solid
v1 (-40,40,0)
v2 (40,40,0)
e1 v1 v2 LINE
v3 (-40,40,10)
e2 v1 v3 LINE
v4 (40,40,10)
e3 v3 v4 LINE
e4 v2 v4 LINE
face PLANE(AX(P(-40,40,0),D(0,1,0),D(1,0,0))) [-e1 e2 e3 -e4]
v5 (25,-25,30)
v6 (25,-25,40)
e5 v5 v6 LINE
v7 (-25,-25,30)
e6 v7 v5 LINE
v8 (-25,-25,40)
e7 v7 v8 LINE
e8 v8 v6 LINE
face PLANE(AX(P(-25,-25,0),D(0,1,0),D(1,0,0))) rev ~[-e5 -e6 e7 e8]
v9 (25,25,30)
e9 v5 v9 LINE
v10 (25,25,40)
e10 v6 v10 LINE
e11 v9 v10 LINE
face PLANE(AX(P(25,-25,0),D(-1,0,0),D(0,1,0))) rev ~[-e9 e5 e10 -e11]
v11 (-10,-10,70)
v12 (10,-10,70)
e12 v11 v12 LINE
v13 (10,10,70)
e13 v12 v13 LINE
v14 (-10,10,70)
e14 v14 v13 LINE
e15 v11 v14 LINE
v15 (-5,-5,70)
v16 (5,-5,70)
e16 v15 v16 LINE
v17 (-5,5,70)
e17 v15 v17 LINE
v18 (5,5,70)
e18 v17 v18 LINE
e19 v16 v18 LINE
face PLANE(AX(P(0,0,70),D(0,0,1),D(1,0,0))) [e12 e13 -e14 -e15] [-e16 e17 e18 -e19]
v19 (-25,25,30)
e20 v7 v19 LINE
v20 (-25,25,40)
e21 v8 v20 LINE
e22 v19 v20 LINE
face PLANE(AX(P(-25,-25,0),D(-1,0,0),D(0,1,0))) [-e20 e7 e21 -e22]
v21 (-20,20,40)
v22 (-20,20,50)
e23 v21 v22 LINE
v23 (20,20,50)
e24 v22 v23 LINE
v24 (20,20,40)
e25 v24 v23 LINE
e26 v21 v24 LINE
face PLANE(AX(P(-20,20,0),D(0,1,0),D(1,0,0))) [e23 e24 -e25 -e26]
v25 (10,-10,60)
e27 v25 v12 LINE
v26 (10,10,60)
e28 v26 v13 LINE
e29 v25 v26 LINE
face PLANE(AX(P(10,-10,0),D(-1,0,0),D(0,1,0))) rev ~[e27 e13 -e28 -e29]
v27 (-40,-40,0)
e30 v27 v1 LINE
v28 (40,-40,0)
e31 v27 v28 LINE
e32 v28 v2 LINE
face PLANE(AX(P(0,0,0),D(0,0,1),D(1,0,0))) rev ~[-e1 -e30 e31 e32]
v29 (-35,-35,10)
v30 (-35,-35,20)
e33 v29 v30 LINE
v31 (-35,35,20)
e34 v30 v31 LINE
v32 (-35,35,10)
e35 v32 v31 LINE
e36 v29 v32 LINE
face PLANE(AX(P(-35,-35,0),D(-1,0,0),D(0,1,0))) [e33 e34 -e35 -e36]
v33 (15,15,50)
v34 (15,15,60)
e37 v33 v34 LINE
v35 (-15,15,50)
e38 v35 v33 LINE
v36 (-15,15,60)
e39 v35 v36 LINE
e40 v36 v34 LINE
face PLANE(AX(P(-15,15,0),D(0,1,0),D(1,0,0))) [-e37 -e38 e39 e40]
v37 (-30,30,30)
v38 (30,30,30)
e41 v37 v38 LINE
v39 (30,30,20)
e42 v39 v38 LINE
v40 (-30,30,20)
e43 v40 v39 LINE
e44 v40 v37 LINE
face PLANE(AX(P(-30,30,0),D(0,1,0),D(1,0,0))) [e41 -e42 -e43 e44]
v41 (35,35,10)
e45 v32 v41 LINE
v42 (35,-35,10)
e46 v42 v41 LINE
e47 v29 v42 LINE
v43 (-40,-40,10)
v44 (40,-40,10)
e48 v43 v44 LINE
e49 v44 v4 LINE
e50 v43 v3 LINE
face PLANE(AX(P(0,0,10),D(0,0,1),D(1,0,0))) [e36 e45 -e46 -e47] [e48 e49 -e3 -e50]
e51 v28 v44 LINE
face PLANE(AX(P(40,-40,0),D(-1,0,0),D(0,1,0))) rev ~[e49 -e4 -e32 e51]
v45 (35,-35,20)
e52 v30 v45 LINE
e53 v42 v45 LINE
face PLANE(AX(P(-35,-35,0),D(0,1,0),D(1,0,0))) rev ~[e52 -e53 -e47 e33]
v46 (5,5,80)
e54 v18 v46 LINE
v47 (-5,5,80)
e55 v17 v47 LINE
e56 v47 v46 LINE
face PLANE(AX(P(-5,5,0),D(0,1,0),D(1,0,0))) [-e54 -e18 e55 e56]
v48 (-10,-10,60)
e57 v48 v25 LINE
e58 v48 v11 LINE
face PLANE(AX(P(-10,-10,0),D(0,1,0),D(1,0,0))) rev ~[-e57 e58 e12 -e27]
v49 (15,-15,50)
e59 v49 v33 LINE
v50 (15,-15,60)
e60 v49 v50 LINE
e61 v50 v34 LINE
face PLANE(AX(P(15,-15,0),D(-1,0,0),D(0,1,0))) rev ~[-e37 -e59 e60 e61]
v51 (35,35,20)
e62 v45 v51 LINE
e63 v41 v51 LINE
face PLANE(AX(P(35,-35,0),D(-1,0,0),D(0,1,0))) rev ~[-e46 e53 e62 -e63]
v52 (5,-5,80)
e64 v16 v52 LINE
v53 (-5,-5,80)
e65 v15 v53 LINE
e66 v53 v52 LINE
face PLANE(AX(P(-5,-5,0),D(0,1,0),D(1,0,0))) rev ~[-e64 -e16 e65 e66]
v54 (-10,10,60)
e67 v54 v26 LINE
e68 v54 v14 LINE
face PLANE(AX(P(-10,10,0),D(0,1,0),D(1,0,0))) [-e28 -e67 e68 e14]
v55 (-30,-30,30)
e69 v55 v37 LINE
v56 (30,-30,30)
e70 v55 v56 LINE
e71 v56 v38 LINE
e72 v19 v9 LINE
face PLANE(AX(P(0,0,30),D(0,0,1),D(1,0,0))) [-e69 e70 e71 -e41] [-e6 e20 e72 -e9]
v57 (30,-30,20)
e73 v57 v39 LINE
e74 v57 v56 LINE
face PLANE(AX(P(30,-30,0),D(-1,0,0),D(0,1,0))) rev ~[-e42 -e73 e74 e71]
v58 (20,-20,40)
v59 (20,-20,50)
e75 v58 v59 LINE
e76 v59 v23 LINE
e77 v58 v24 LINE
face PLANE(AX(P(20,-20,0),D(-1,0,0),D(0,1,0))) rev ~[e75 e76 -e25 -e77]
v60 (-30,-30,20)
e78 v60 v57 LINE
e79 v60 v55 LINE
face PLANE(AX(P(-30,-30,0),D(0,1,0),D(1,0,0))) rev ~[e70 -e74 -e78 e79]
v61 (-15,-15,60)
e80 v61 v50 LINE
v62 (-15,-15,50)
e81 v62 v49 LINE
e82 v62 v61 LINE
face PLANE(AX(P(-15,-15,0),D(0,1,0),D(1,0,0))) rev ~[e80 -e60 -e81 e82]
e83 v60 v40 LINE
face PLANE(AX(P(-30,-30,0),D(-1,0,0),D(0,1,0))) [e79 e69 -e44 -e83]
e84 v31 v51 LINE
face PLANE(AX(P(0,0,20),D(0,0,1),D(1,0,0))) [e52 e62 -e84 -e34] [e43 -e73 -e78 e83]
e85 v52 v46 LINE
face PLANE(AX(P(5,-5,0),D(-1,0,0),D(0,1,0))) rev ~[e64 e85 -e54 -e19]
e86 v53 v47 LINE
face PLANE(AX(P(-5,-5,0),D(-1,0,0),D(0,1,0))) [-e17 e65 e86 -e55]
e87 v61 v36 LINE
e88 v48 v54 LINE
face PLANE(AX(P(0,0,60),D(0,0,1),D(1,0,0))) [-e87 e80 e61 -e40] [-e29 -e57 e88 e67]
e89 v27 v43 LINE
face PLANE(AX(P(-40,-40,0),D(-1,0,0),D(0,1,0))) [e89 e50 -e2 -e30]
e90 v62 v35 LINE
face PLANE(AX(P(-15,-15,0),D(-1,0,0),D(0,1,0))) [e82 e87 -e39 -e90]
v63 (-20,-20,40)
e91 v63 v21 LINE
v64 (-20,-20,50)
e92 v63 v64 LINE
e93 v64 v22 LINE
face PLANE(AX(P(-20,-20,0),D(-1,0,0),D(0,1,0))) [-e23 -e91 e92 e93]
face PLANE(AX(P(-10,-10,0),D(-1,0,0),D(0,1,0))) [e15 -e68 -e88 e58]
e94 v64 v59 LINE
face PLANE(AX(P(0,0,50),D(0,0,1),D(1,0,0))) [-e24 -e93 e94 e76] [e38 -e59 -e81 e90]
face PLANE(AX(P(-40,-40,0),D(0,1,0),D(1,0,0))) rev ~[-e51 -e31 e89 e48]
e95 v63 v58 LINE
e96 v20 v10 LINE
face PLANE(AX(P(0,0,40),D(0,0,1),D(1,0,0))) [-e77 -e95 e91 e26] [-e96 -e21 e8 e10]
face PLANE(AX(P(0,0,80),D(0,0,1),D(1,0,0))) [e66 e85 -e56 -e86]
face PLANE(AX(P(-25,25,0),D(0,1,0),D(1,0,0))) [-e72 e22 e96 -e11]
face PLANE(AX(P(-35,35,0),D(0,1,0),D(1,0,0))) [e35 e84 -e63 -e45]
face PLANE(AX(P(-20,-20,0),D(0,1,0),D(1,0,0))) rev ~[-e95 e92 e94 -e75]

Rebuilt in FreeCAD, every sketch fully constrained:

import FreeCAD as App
import Part
import Sketcher
from FreeCAD import Vector
Q = App.Units.Quantity

doc = App.newDocument("Part")
body = doc.addObject("PartDesign::Body", "Body")

sketch1 = body.newObject("Sketcher::SketchObject", "Sketch")
sketch1.AttachmentSupport = (doc.getObject("XY_Plane"), [""])
sketch1.MapMode = "FlatFace"
sketch1.addGeometry([
    Part.LineSegment(Vector(-40, 40, 0), Vector(-40, -40, 0)),
    Part.LineSegment(Vector(-40, -40, 0), Vector(40, -40, 0)),
    Part.LineSegment(Vector(40, -40, 0), Vector(40, 40, 0)),
    Part.LineSegment(Vector(40, 40, 0), Vector(-40, 40, 0)),
    Part.LineSegment(Vector(35, -35, 0), Vector(-35, -35, 0)),
    Part.LineSegment(Vector(-35, -35, 0), Vector(-35, 35, 0)),
    Part.LineSegment(Vector(-35, 35, 0), Vector(35, 35, 0)),
    Part.LineSegment(Vector(35, 35, 0), Vector(35, -35, 0)),
], False)
sketch1.addConstraint([
    Sketcher.Constraint("Coincident", 0, 2, 1, 1),
    Sketcher.Constraint("Coincident", 1, 2, 2, 1),
    Sketcher.Constraint("Coincident", 2, 2, 3, 1),
    Sketcher.Constraint("Coincident", 3, 2, 0, 1),
    Sketcher.Constraint("Coincident", 4, 2, 5, 1),
    Sketcher.Constraint("Coincident", 5, 2, 6, 1),
    Sketcher.Constraint("Coincident", 6, 2, 7, 1),
    Sketcher.Constraint("Coincident", 7, 2, 4, 1),
    Sketcher.Constraint("Vertical", 0),
    Sketcher.Constraint("Horizontal", 1),
    Sketcher.Constraint("Vertical", 2),
    Sketcher.Constraint("Horizontal", 3),
    Sketcher.Constraint("Horizontal", 4),
    Sketcher.Constraint("Vertical", 5),
    Sketcher.Constraint("Horizontal", 6),
    Sketcher.Constraint("Vertical", 7),
    Sketcher.Constraint("Symmetric", 0, 2, 2, 2, -1, 1),
    Sketcher.Constraint("Symmetric", 4, 2, 6, 2, -1, 1),
    Sketcher.Constraint("Equal", 3, 0),
    Sketcher.Constraint("Equal", 6, 5),
    Sketcher.Constraint("DistanceX", 1, 1, 1, 2, Q("80 mm")),
    Sketcher.Constraint("DistanceX", 4, 2, 4, 1, Q("70 mm")),
])
pad1 = body.newObject("PartDesign::Pad", "Pad")
pad1.Profile = sketch1
pad1.Length = 10

sketch2 = body.newObject("Sketcher::SketchObject", "Sketch001")
sketch2.AttachmentSupport = (doc.getObject("XY_Plane"), [""])
sketch2.MapMode = "FlatFace"
sketch2.addGeometry([
    Part.LineSegment(Vector(-35, 35, 0), Vector(-35, -35, 0)),
    Part.LineSegment(Vector(-35, -35, 0), Vector(35, -35, 0)),
    Part.LineSegment(Vector(35, -35, 0), Vector(35, 35, 0)),
    Part.LineSegment(Vector(35, 35, 0), Vector(-35, 35, 0)),
    Part.LineSegment(Vector(30, -30, 0), Vector(-30, -30, 0)),
    Part.LineSegment(Vector(-30, -30, 0), Vector(-30, 30, 0)),
    Part.LineSegment(Vector(-30, 30, 0), Vector(30, 30, 0)),
    Part.LineSegment(Vector(30, 30, 0), Vector(30, -30, 0)),
], False)
sketch2.addConstraint([
    Sketcher.Constraint("Coincident", 0, 2, 1, 1),
    Sketcher.Constraint("Coincident", 1, 2, 2, 1),
    Sketcher.Constraint("Coincident", 2, 2, 3, 1),
    Sketcher.Constraint("Coincident", 3, 2, 0, 1),
    Sketcher.Constraint("Coincident", 4, 2, 5, 1),
    Sketcher.Constraint("Coincident", 5, 2, 6, 1),
    Sketcher.Constraint("Coincident", 6, 2, 7, 1),
    Sketcher.Constraint("Coincident", 7, 2, 4, 1),
    Sketcher.Constraint("Vertical", 0),
    Sketcher.Constraint("Horizontal", 1),
    Sketcher.Constraint("Vertical", 2),
    Sketcher.Constraint("Horizontal", 3),
    Sketcher.Constraint("Horizontal", 4),
    Sketcher.Constraint("Vertical", 5),
    Sketcher.Constraint("Horizontal", 6),
    Sketcher.Constraint("Vertical", 7),
    Sketcher.Constraint("Symmetric", 0, 2, 2, 2, -1, 1),
    Sketcher.Constraint("Symmetric", 4, 2, 6, 2, -1, 1),
    Sketcher.Constraint("Equal", 3, 0),
    Sketcher.Constraint("Equal", 6, 5),
    Sketcher.Constraint("DistanceX", 1, 1, 1, 2, Q("70 mm")),
    Sketcher.Constraint("DistanceX", 4, 2, 4, 1, Q("60 mm")),
])
pad2 = body.newObject("PartDesign::Pad", "Pad001")
pad2.Profile = sketch2
pad2.Length = 20

sketch3 = body.newObject("Sketcher::SketchObject", "Sketch002")
sketch3.AttachmentSupport = (doc.getObject("XY_Plane"), [""])
sketch3.MapMode = "FlatFace"
sketch3.addGeometry([
    Part.LineSegment(Vector(-30, 30, 0), Vector(-30, -30, 0)),
    Part.LineSegment(Vector(-30, -30, 0), Vector(30, -30, 0)),
    Part.LineSegment(Vector(30, -30, 0), Vector(30, 30, 0)),
    Part.LineSegment(Vector(30, 30, 0), Vector(-30, 30, 0)),
    Part.LineSegment(Vector(25, -25, 0), Vector(-25, -25, 0)),
    Part.LineSegment(Vector(-25, -25, 0), Vector(-25, 25, 0)),
    Part.LineSegment(Vector(-25, 25, 0), Vector(25, 25, 0)),
    Part.LineSegment(Vector(25, 25, 0), Vector(25, -25, 0)),
], False)
sketch3.addConstraint([
    Sketcher.Constraint("Coincident", 0, 2, 1, 1),
    Sketcher.Constraint("Coincident", 1, 2, 2, 1),
    Sketcher.Constraint("Coincident", 2, 2, 3, 1),
    Sketcher.Constraint("Coincident", 3, 2, 0, 1),
    Sketcher.Constraint("Coincident", 4, 2, 5, 1),
    Sketcher.Constraint("Coincident", 5, 2, 6, 1),
    Sketcher.Constraint("Coincident", 6, 2, 7, 1),
    Sketcher.Constraint("Coincident", 7, 2, 4, 1),
    Sketcher.Constraint("Vertical", 0),
    Sketcher.Constraint("Horizontal", 1),
    Sketcher.Constraint("Vertical", 2),
    Sketcher.Constraint("Horizontal", 3),
    Sketcher.Constraint("Horizontal", 4),
    Sketcher.Constraint("Vertical", 5),
    Sketcher.Constraint("Horizontal", 6),
    Sketcher.Constraint("Vertical", 7),
    Sketcher.Constraint("Symmetric", 0, 2, 2, 2, -1, 1),
    Sketcher.Constraint("Symmetric", 4, 2, 6, 2, -1, 1),
    Sketcher.Constraint("Equal", 3, 0),
    Sketcher.Constraint("Equal", 6, 5),
    Sketcher.Constraint("DistanceX", 1, 1, 1, 2, Q("60 mm")),
    Sketcher.Constraint("DistanceX", 4, 2, 4, 1, Q("50 mm")),
])
pad3 = body.newObject("PartDesign::Pad", "Pad002")
pad3.Profile = sketch3
pad3.Length = 30

sketch4 = body.newObject("Sketcher::SketchObject", "Sketch003")
sketch4.AttachmentSupport = (doc.getObject("XY_Plane"), [""])
sketch4.MapMode = "FlatFace"
sketch4.addGeometry([
    Part.LineSegment(Vector(-25, 25, 0), Vector(-25, -25, 0)),
    Part.LineSegment(Vector(-25, -25, 0), Vector(25, -25, 0)),
    Part.LineSegment(Vector(25, -25, 0), Vector(25, 25, 0)),
    Part.LineSegment(Vector(25, 25, 0), Vector(-25, 25, 0)),
    Part.LineSegment(Vector(20, -20, 0), Vector(-20, -20, 0)),
    Part.LineSegment(Vector(-20, -20, 0), Vector(-20, 20, 0)),
    Part.LineSegment(Vector(-20, 20, 0), Vector(20, 20, 0)),
    Part.LineSegment(Vector(20, 20, 0), Vector(20, -20, 0)),
], False)
sketch4.addConstraint([
    Sketcher.Constraint("Coincident", 0, 2, 1, 1),
    Sketcher.Constraint("Coincident", 1, 2, 2, 1),
    Sketcher.Constraint("Coincident", 2, 2, 3, 1),
    Sketcher.Constraint("Coincident", 3, 2, 0, 1),
    Sketcher.Constraint("Coincident", 4, 2, 5, 1),
    Sketcher.Constraint("Coincident", 5, 2, 6, 1),
    Sketcher.Constraint("Coincident", 6, 2, 7, 1),
    Sketcher.Constraint("Coincident", 7, 2, 4, 1),
    Sketcher.Constraint("Vertical", 0),
    Sketcher.Constraint("Horizontal", 1),
    Sketcher.Constraint("Vertical", 2),
    Sketcher.Constraint("Horizontal", 3),
    Sketcher.Constraint("Horizontal", 4),
    Sketcher.Constraint("Vertical", 5),
    Sketcher.Constraint("Horizontal", 6),
    Sketcher.Constraint("Vertical", 7),
    Sketcher.Constraint("Symmetric", 0, 2, 2, 2, -1, 1),
    Sketcher.Constraint("Symmetric", 4, 2, 6, 2, -1, 1),
    Sketcher.Constraint("Equal", 3, 0),
    Sketcher.Constraint("Equal", 6, 5),
    Sketcher.Constraint("DistanceX", 1, 1, 1, 2, Q("50 mm")),
    Sketcher.Constraint("DistanceX", 4, 2, 4, 1, Q("40 mm")),
])
pad4 = body.newObject("PartDesign::Pad", "Pad003")
pad4.Profile = sketch4
pad4.Length = 40

sketch5 = body.newObject("Sketcher::SketchObject", "Sketch004")
sketch5.AttachmentSupport = (doc.getObject("XY_Plane"), [""])
sketch5.MapMode = "FlatFace"
sketch5.addGeometry([
    Part.LineSegment(Vector(-20, 20, 0), Vector(-20, -20, 0)),
    Part.LineSegment(Vector(-20, -20, 0), Vector(20, -20, 0)),
    Part.LineSegment(Vector(20, -20, 0), Vector(20, 20, 0)),
    Part.LineSegment(Vector(20, 20, 0), Vector(-20, 20, 0)),
    Part.LineSegment(Vector(15, -15, 0), Vector(-15, -15, 0)),
    Part.LineSegment(Vector(-15, -15, 0), Vector(-15, 15, 0)),
    Part.LineSegment(Vector(-15, 15, 0), Vector(15, 15, 0)),
    Part.LineSegment(Vector(15, 15, 0), Vector(15, -15, 0)),
], False)
sketch5.addConstraint([
    Sketcher.Constraint("Coincident", 0, 2, 1, 1),
    Sketcher.Constraint("Coincident", 1, 2, 2, 1),
    Sketcher.Constraint("Coincident", 2, 2, 3, 1),
    Sketcher.Constraint("Coincident", 3, 2, 0, 1),
    Sketcher.Constraint("Coincident", 4, 2, 5, 1),
    Sketcher.Constraint("Coincident", 5, 2, 6, 1),
    Sketcher.Constraint("Coincident", 6, 2, 7, 1),
    Sketcher.Constraint("Coincident", 7, 2, 4, 1),
    Sketcher.Constraint("Vertical", 0),
    Sketcher.Constraint("Horizontal", 1),
    Sketcher.Constraint("Vertical", 2),
    Sketcher.Constraint("Horizontal", 3),
    Sketcher.Constraint("Horizontal", 4),
    Sketcher.Constraint("Vertical", 5),
    Sketcher.Constraint("Horizontal", 6),
    Sketcher.Constraint("Vertical", 7),
    Sketcher.Constraint("Symmetric", 0, 2, 2, 2, -1, 1),
    Sketcher.Constraint("Symmetric", 4, 2, 6, 2, -1, 1),
    Sketcher.Constraint("Equal", 3, 0),
    Sketcher.Constraint("Equal", 6, 5),
    Sketcher.Constraint("DistanceX", 1, 1, 1, 2, Q("40 mm")),
    Sketcher.Constraint("DistanceX", 4, 2, 4, 1, Q("30 mm")),
])
pad5 = body.newObject("PartDesign::Pad", "Pad004")
pad5.Profile = sketch5
pad5.Length = 50

sketch6 = body.newObject("Sketcher::SketchObject", "Sketch005")
sketch6.AttachmentSupport = (doc.getObject("XY_Plane"), [""])
sketch6.MapMode = "FlatFace"
sketch6.addGeometry([
    Part.LineSegment(Vector(-15, 15, 0), Vector(-15, -15, 0)),
    Part.LineSegment(Vector(-15, -15, 0), Vector(15, -15, 0)),
    Part.LineSegment(Vector(15, -15, 0), Vector(15, 15, 0)),
    Part.LineSegment(Vector(15, 15, 0), Vector(-15, 15, 0)),
    Part.LineSegment(Vector(10, -10, 0), Vector(-10, -10, 0)),
    Part.LineSegment(Vector(-10, -10, 0), Vector(-10, 10, 0)),
    Part.LineSegment(Vector(-10, 10, 0), Vector(10, 10, 0)),
    Part.LineSegment(Vector(10, 10, 0), Vector(10, -10, 0)),
], False)
sketch6.addConstraint([
    Sketcher.Constraint("Coincident", 0, 2, 1, 1),
    Sketcher.Constraint("Coincident", 1, 2, 2, 1),
    Sketcher.Constraint("Coincident", 2, 2, 3, 1),
    Sketcher.Constraint("Coincident", 3, 2, 0, 1),
    Sketcher.Constraint("Coincident", 4, 2, 5, 1),
    Sketcher.Constraint("Coincident", 5, 2, 6, 1),
    Sketcher.Constraint("Coincident", 6, 2, 7, 1),
    Sketcher.Constraint("Coincident", 7, 2, 4, 1),
    Sketcher.Constraint("Vertical", 0),
    Sketcher.Constraint("Horizontal", 1),
    Sketcher.Constraint("Vertical", 2),
    Sketcher.Constraint("Horizontal", 3),
    Sketcher.Constraint("Horizontal", 4),
    Sketcher.Constraint("Vertical", 5),
    Sketcher.Constraint("Horizontal", 6),
    Sketcher.Constraint("Vertical", 7),
    Sketcher.Constraint("Symmetric", 0, 2, 2, 2, -1, 1),
    Sketcher.Constraint("Symmetric", 4, 2, 6, 2, -1, 1),
    Sketcher.Constraint("Equal", 3, 0),
    Sketcher.Constraint("Equal", 6, 5),
    Sketcher.Constraint("DistanceX", 1, 1, 1, 2, Q("30 mm")),
    Sketcher.Constraint("DistanceX", 4, 2, 4, 1, Q("20 mm")),
])
pad6 = body.newObject("PartDesign::Pad", "Pad005")
pad6.Profile = sketch6
pad6.Length = 60

sketch7 = body.newObject("Sketcher::SketchObject", "Sketch006")
sketch7.AttachmentSupport = (doc.getObject("XY_Plane"), [""])
sketch7.MapMode = "FlatFace"
sketch7.addGeometry([
    Part.LineSegment(Vector(-10, 10, 0), Vector(-10, -10, 0)),
    Part.LineSegment(Vector(-10, -10, 0), Vector(10, -10, 0)),
    Part.LineSegment(Vector(10, -10, 0), Vector(10, 10, 0)),
    Part.LineSegment(Vector(10, 10, 0), Vector(-10, 10, 0)),
    Part.LineSegment(Vector(5, -5, 0), Vector(-5, -5, 0)),
    Part.LineSegment(Vector(-5, -5, 0), Vector(-5, 5, 0)),
    Part.LineSegment(Vector(-5, 5, 0), Vector(5, 5, 0)),
    Part.LineSegment(Vector(5, 5, 0), Vector(5, -5, 0)),
], False)
sketch7.addConstraint([
    Sketcher.Constraint("Coincident", 0, 2, 1, 1),
    Sketcher.Constraint("Coincident", 1, 2, 2, 1),
    Sketcher.Constraint("Coincident", 2, 2, 3, 1),
    Sketcher.Constraint("Coincident", 3, 2, 0, 1),
    Sketcher.Constraint("Coincident", 4, 2, 5, 1),
    Sketcher.Constraint("Coincident", 5, 2, 6, 1),
    Sketcher.Constraint("Coincident", 6, 2, 7, 1),
    Sketcher.Constraint("Coincident", 7, 2, 4, 1),
    Sketcher.Constraint("Vertical", 0),
    Sketcher.Constraint("Horizontal", 1),
    Sketcher.Constraint("Vertical", 2),
    Sketcher.Constraint("Horizontal", 3),
    Sketcher.Constraint("Horizontal", 4),
    Sketcher.Constraint("Vertical", 5),
    Sketcher.Constraint("Horizontal", 6),
    Sketcher.Constraint("Vertical", 7),
    Sketcher.Constraint("Symmetric", 0, 2, 2, 2, -1, 1),
    Sketcher.Constraint("Symmetric", 4, 2, 6, 2, -1, 1),
    Sketcher.Constraint("Equal", 3, 0),
    Sketcher.Constraint("Equal", 6, 5),
    Sketcher.Constraint("DistanceX", 1, 1, 1, 2, Q("20 mm")),
    Sketcher.Constraint("DistanceX", 4, 2, 4, 1, Q("10 mm")),
])
pad7 = body.newObject("PartDesign::Pad", "Pad006")
pad7.Profile = sketch7
pad7.Length = 70

sketch8 = body.newObject("Sketcher::SketchObject", "Sketch007")
sketch8.AttachmentSupport = (doc.getObject("XY_Plane"), [""])
sketch8.MapMode = "FlatFace"
sketch8.addGeometry([
    Part.LineSegment(Vector(-5, 5, 0), Vector(-5, -5, 0)),
    Part.LineSegment(Vector(-5, -5, 0), Vector(5, -5, 0)),
    Part.LineSegment(Vector(5, -5, 0), Vector(5, 5, 0)),
    Part.LineSegment(Vector(5, 5, 0), Vector(-5, 5, 0)),
], False)
sketch8.addConstraint([
    Sketcher.Constraint("Coincident", 0, 2, 1, 1),
    Sketcher.Constraint("Coincident", 1, 2, 2, 1),
    Sketcher.Constraint("Coincident", 2, 2, 3, 1),
    Sketcher.Constraint("Coincident", 3, 2, 0, 1),
    Sketcher.Constraint("Vertical", 0),
    Sketcher.Constraint("Horizontal", 1),
    Sketcher.Constraint("Vertical", 2),
    Sketcher.Constraint("Horizontal", 3),
    Sketcher.Constraint("Symmetric", 0, 2, 2, 2, -1, 1),
    Sketcher.Constraint("Equal", 3, 0),
    Sketcher.Constraint("DistanceX", 1, 1, 1, 2, Q("10 mm")),
])
pad8 = body.newObject("PartDesign::Pad", "Pad007")
pad8.Profile = sketch8
pad8.Length = 80

doc.recompute()
